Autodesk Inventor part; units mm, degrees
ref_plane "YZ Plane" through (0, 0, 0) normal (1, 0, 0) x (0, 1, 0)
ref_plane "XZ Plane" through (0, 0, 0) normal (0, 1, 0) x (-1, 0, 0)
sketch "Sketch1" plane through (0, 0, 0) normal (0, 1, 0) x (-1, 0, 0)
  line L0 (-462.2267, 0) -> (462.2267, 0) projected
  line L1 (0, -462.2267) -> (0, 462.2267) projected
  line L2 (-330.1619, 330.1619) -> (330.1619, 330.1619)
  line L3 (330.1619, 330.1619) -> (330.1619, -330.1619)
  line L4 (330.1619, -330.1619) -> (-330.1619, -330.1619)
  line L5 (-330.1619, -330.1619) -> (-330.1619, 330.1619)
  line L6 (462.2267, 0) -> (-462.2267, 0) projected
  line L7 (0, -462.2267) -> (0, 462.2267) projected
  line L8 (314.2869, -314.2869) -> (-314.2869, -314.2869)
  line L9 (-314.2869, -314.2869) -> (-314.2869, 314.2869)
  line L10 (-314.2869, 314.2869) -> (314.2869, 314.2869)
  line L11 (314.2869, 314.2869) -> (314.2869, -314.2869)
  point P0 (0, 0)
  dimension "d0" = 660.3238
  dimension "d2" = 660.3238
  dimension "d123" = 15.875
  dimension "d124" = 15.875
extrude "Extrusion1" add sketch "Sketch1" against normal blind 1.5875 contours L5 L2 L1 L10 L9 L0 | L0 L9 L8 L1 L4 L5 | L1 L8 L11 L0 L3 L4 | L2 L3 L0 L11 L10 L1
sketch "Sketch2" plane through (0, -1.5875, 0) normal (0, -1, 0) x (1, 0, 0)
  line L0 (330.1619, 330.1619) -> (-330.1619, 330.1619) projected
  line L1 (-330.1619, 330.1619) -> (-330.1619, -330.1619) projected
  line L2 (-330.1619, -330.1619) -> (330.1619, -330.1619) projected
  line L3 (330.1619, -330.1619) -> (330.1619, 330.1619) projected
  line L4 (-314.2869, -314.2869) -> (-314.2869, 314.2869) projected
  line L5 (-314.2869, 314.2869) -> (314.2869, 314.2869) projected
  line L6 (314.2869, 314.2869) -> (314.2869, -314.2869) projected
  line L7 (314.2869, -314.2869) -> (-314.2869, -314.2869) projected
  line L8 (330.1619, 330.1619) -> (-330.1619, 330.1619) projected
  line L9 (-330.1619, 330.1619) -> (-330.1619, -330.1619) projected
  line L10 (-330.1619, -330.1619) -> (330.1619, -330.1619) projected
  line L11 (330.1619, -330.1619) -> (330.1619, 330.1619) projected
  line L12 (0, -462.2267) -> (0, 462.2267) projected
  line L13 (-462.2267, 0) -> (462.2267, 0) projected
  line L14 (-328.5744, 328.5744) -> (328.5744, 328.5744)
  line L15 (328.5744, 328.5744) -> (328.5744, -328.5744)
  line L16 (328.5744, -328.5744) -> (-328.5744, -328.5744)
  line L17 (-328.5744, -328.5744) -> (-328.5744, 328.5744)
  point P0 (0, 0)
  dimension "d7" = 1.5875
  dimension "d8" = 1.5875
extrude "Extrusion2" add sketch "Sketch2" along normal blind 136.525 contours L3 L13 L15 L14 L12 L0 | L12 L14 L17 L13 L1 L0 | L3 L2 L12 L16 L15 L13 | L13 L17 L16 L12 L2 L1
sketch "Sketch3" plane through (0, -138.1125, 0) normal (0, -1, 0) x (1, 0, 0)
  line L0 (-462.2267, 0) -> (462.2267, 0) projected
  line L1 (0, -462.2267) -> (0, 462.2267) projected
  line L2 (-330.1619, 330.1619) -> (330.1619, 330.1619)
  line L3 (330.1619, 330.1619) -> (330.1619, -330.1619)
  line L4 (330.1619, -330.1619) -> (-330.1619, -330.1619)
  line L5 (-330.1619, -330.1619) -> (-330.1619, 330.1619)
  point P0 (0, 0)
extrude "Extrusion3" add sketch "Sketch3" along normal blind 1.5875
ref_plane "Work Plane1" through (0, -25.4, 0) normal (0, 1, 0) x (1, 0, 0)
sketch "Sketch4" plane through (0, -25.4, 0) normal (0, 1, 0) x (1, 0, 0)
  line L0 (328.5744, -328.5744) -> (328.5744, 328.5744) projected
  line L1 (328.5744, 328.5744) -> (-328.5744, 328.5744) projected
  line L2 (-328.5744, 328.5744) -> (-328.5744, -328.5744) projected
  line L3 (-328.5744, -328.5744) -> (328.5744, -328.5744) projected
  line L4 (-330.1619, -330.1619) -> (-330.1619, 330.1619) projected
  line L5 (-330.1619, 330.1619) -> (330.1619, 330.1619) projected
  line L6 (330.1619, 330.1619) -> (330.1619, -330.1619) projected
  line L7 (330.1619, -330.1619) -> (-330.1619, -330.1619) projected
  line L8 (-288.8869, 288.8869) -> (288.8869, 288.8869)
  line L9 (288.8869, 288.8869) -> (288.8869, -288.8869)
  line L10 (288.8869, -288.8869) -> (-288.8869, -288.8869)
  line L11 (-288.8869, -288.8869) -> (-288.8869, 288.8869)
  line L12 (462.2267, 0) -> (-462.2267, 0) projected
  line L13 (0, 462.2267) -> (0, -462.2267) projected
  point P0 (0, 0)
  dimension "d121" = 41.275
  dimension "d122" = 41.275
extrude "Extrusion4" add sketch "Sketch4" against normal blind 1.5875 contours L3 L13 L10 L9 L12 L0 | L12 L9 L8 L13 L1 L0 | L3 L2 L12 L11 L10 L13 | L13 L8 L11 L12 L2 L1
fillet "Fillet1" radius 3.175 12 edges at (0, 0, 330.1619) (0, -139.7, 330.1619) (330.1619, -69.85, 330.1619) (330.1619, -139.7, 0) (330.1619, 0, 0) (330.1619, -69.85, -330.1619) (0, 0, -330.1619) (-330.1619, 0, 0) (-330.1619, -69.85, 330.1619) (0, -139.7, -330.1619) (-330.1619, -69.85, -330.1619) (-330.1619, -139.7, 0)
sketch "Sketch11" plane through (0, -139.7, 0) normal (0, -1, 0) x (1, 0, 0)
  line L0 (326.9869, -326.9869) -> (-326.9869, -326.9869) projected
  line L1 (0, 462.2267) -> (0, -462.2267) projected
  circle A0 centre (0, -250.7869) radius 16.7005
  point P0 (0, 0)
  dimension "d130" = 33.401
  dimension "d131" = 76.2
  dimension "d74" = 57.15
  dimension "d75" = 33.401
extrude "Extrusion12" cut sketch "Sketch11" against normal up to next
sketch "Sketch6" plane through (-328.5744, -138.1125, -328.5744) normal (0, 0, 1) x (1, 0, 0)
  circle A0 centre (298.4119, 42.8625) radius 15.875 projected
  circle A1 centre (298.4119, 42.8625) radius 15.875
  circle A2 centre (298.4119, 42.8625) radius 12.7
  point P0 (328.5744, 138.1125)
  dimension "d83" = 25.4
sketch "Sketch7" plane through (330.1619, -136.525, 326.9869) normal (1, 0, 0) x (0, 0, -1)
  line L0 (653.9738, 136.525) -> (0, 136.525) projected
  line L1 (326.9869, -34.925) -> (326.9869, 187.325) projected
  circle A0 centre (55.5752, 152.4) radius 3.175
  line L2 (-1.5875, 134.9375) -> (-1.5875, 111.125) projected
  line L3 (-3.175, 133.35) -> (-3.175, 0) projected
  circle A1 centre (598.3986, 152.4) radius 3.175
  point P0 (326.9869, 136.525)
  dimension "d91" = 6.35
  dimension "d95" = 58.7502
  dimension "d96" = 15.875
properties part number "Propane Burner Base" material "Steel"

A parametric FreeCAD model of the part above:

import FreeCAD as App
import Part
import Sketcher

V = App.Vector
Q = App.Units.Quantity


def edges_at(feature, points):
    """Names of the edges that pass closest to the given points."""
    edges = feature.Shape.Edges
    near = lambda p: min(range(len(edges)), key=lambda i: edges[i].distToShape(Part.Vertex(*p))[0])
    return sorted({f"Edge{near(p) + 1}" for p in points})

doc = App.newDocument("Part")
body = doc.addObject("PartDesign::Body", "Body")

# Sketch on XZ plane
sketch1 = body.newObject("Sketcher::SketchObject", "Sketch")
sketch1.AttachmentSupport = (doc.getObject("XZ_Plane"), [""])
sketch1.MapMode = "FlatFace"
sketch1.addGeometry([
    Part.LineSegment(V(330, 330, 0), V(330, -330, 0)),  # 0
    Part.LineSegment(V(330, -330, 0), V(-330, -330, 0)),  # 1
    Part.LineSegment(V(-330, -330, 0), V(-330, 330, 0)),  # 2
    Part.LineSegment(V(-330, 330, 0), V(330, 330, 0)),  # 3
    Part.LineSegment(V(314, 314, 0), V(-314, 314, 0)),  # 4
    Part.LineSegment(V(-314, 314, 0), V(-314, -314, 0)),  # 5
    Part.LineSegment(V(-314, -314, 0), V(314, -314, 0)),  # 6
    Part.LineSegment(V(314, -314, 0), V(314, 314, 0)),  # 7
], False)
sketch1.addConstraint([
    Sketcher.Constraint("Coincident", 0, 2, 1, 1),
    Sketcher.Constraint("Coincident", 1, 2, 2, 1),
    Sketcher.Constraint("Coincident", 2, 2, 3, 1),
    Sketcher.Constraint("Coincident", 3, 2, 0, 1),
    Sketcher.Constraint("Coincident", 4, 2, 5, 1),
    Sketcher.Constraint("Coincident", 5, 2, 6, 1),
    Sketcher.Constraint("Coincident", 6, 2, 7, 1),
    Sketcher.Constraint("Coincident", 7, 2, 4, 1),
    Sketcher.Constraint("Vertical", 0),
    Sketcher.Constraint("Horizontal", 1),
    Sketcher.Constraint("Vertical", 2),
    Sketcher.Constraint("Horizontal", 3),
    Sketcher.Constraint("Horizontal", 4),
    Sketcher.Constraint("Vertical", 5),
    Sketcher.Constraint("Horizontal", 6),
    Sketcher.Constraint("Vertical", 7),
    Sketcher.Constraint("Symmetric", 0, 2, 2, 2, -1, 1),
    Sketcher.Constraint("Symmetric", 4, 2, 6, 2, -1, 1),
    Sketcher.Constraint("Equal", 3, 0),
    Sketcher.Constraint("Equal", 6, 5),
    Sketcher.Constraint("DistanceX", 1, 2, 1, 1, Q("25.997 in")),
    Sketcher.Constraint("DistanceX", 2, 2, 4, 2, Q("0.625 in")),
])
pad1 = body.newObject("PartDesign::Pad", "Pad")
pad1.Profile = sketch1
pad1.Length = Q("0.0625 in")

# Sketch on XZ plane
sketch2 = body.newObject("Sketcher::SketchObject", "Sketch001")
sketch2.AttachmentSupport = (doc.getObject("XZ_Plane"), [""])
sketch2.MapMode = "FlatFace"
sketch2.AttachmentOffset = App.Placement(V(0, 0, 0.0625 * 25.4), App.Rotation())
sketch2.addGeometry([
    Part.LineSegment(V(330, 330, 0), V(-330, 330, 0)),  # 0
    Part.LineSegment(V(-330, 330, 0), V(-330, -330, 0)),  # 1
    Part.LineSegment(V(-330, -330, 0), V(330, -330, 0)),  # 2
    Part.LineSegment(V(330, -330, 0), V(330, 330, 0)),  # 3
    Part.LineSegment(V(329, 329, 0), V(329, -329, 0)),  # 4
    Part.LineSegment(V(329, -329, 0), V(-329, -329, 0)),  # 5
    Part.LineSegment(V(-329, -329, 0), V(-329, 329, 0)),  # 6
    Part.LineSegment(V(-329, 329, 0), V(329, 329, 0)),  # 7
], False)
sketch2.addConstraint([
    Sketcher.Constraint("Coincident", 0, 2, 1, 1),
    Sketcher.Constraint("Coincident", 1, 2, 2, 1),
    Sketcher.Constraint("Coincident", 2, 2, 3, 1),
    Sketcher.Constraint("Coincident", 3, 2, 0, 1),
    Sketcher.Constraint("Coincident", 4, 2, 5, 1),
    Sketcher.Constraint("Coincident", 5, 2, 6, 1),
    Sketcher.Constraint("Coincident", 6, 2, 7, 1),
    Sketcher.Constraint("Coincident", 7, 2, 4, 1),
    Sketcher.Constraint("Horizontal", 0),
    Sketcher.Constraint("Vertical", 1),
    Sketcher.Constraint("Horizontal", 2),
    Sketcher.Constraint("Vertical", 3),
    Sketcher.Constraint("Vertical", 4),
    Sketcher.Constraint("Horizontal", 5),
    Sketcher.Constraint("Vertical", 6),
    Sketcher.Constraint("Horizontal", 7),
    Sketcher.Constraint("Symmetric", 0, 2, 2, 2, -1, 1),
    Sketcher.Constraint("Symmetric", 4, 2, 6, 2, -1, 1),
    Sketcher.Constraint("Equal", 2, 1),
    Sketcher.Constraint("Equal", 7, 4),
    Sketcher.Constraint("DistanceX", 4, 2, 2, 2, Q("0.0625 in")),
    Sketcher.Constraint("DistanceX", 0, 2, 0, 1, Q("25.997 in")),
])
pad2 = body.newObject("PartDesign::Pad", "Pad001")
pad2.Profile = sketch2
pad2.Length = Q("5.375 in")

# Sketch on XZ plane
sketch3 = body.newObject("Sketcher::SketchObject", "Sketch002")
sketch3.AttachmentSupport = (doc.getObject("XZ_Plane"), [""])
sketch3.MapMode = "FlatFace"
sketch3.AttachmentOffset = App.Placement(V(0, 0, 5.4375 * 25.4), App.Rotation())
sketch3.addGeometry([
    Part.LineSegment(V(-330, 330, 0), V(-330, -330, 0)),
    Part.LineSegment(V(-330, -330, 0), V(330, -330, 0)),
    Part.LineSegment(V(330, -330, 0), V(330, 330, 0)),
    Part.LineSegment(V(330, 330, 0), V(-330, 330, 0)),
], False)
sketch3.addConstraint([
    Sketcher.Constraint("Coincident", 0, 2, 1, 1),
    Sketcher.Constraint("Coincident", 1, 2, 2, 1),
    Sketcher.Constraint("Coincident", 2, 2, 3, 1),
    Sketcher.Constraint("Coincident", 3, 2, 0, 1),
    Sketcher.Constraint("Vertical", 0),
    Sketcher.Constraint("Horizontal", 1),
    Sketcher.Constraint("Vertical", 2),
    Sketcher.Constraint("Horizontal", 3),
    Sketcher.Constraint("Symmetric", 0, 2, 2, 2, -1, 1),
    Sketcher.Constraint("Equal", 3, 0),
    Sketcher.Constraint("DistanceX", 1, 1, 1, 2, Q("25.997 in")),
])
pad3 = body.newObject("PartDesign::Pad", "Pad002")
pad3.Profile = sketch3
pad3.Length = Q("0.0625 in")

# Sketch on XZ plane
sketch4 = body.newObject("Sketcher::SketchObject", "Sketch003")
sketch4.AttachmentSupport = (doc.getObject("XZ_Plane"), [""])
sketch4.MapMode = "FlatFace"
sketch4.AttachmentOffset = App.Placement(V(0, 0, 1 * 25.4), App.Rotation())
sketch4.addGeometry([
    Part.LineSegment(V(329, 329, 0), V(329, -329, 0)),  # 0
    Part.LineSegment(V(329, -329, 0), V(-329, -329, 0)),  # 1
    Part.LineSegment(V(-329, -329, 0), V(-329, 329, 0)),  # 2
    Part.LineSegment(V(-329, 329, 0), V(329, 329, 0)),  # 3
    Part.LineSegment(V(289, 289, 0), V(-289, 289, 0)),  # 4
    Part.LineSegment(V(-289, 289, 0), V(-289, -289, 0)),  # 5
    Part.LineSegment(V(-289, -289, 0), V(289, -289, 0)),  # 6
    Part.LineSegment(V(289, -289, 0), V(289, 289, 0)),  # 7
], False)
sketch4.addConstraint([
    Sketcher.Constraint("Coincident", 0, 2, 1, 1),
    Sketcher.Constraint("Coincident", 1, 2, 2, 1),
    Sketcher.Constraint("Coincident", 2, 2, 3, 1),
    Sketcher.Constraint("Coincident", 3, 2, 0, 1),
    Sketcher.Constraint("Coincident", 4, 2, 5, 1),
    Sketcher.Constraint("Coincident", 5, 2, 6, 1),
    Sketcher.Constraint("Coincident", 6, 2, 7, 1),
    Sketcher.Constraint("Coincident", 7, 2, 4, 1),
    Sketcher.Constraint("Vertical", 0),
    Sketcher.Constraint("Horizontal", 1),
    Sketcher.Constraint("Vertical", 2),
    Sketcher.Constraint("Horizontal", 3),
    Sketcher.Constraint("Horizontal", 4),
    Sketcher.Constraint("Vertical", 5),
    Sketcher.Constraint("Horizontal", 6),
    Sketcher.Constraint("Vertical", 7),
    Sketcher.Constraint("Symmetric", 0, 2, 2, 2, -1, 1),
    Sketcher.Constraint("Symmetric", 4, 2, 6, 2, -1, 1),
    Sketcher.Constraint("Equal", 3, 0),
    Sketcher.Constraint("Equal", 6, 5),
    Sketcher.Constraint("DistanceX", 1, 2, 1, 1, Q("25.872 in")),
    Sketcher.Constraint("DistanceX", 4, 2, 4, 1, Q("22.747 in")),
])
pad4 = body.newObject("PartDesign::Pad", "Pad003")
pad4.Profile = sketch4
pad4.Length = Q("0.0625 in")
doc.recompute()

fillet = body.newObject("PartDesign::Fillet", "Fillet")
fillet.Base = (pad4, edges_at(pad4, [
    (0, 0, 330.162),
    (0, -139.7, 330.162),
    (330.162, -69.85, 330.162),
    (330.162, -139.7, 0),
    (330.162, 0, 0),
    (330.162, -69.85, -330.162),
    (0, 0, -330.162),
    (-330.162, 0, 0),
    (-330.162, -69.85, 330.162),
    (0, -139.7, -330.162),
    (-330.162, -69.85, -330.162),
    (-330.162, -139.7, 0),
]))
fillet.Radius = Q("0.125 in")

# Sketch on XZ plane
sketch5 = body.newObject("Sketcher::SketchObject", "Sketch004")
sketch5.AttachmentSupport = (doc.getObject("XZ_Plane"), [""])
sketch5.MapMode = "FlatFace"
sketch5.AttachmentOffset = App.Placement(V(0, 0, 5.5 * 25.4), App.Rotation())
sketch5.addGeometry(Part.Circle(V(0, -251, 0), V(0, 0, 1), 17), False)
sketch5.addConstraint([
    Sketcher.Constraint("PointOnObject", 0, 3, -2),
    Sketcher.Constraint("Diameter", 0, Q("1.315 in")),
    Sketcher.Constraint("DistanceY", 0, 3, -1, 1, Q("9.8735 in")),
])
pocket1 = body.newObject("PartDesign::Pocket", "Pocket")
pocket1.Profile = sketch5
pocket1.Type = "UpToFirst"

doc.recompute()
